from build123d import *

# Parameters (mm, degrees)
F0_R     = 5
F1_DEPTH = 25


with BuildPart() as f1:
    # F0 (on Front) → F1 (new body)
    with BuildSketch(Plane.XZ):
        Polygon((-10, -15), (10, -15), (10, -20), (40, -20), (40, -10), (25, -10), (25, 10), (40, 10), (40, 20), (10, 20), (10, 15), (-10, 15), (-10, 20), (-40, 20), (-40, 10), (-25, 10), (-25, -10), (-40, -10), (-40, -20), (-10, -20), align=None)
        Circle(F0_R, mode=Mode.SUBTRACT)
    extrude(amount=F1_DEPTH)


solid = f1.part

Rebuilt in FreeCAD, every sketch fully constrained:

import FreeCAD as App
import Part
import Sketcher

V = App.Vector

doc = App.newDocument("Part")
body = doc.addObject("PartDesign::Body", "Body")

sketch1 = doc.addObject("Sketcher::SketchObject", "Sketch")
body.addObject(sketch1)
sketch1.AttachmentSupport = (doc.XZ_Plane, [""])
sketch1.MapMode = "FlatFace"
sketch1.addGeometry(Part.LineSegment(V(-10, -15, 0), V(10, -15, 0)), False)
sketch1.addGeometry(Part.LineSegment(V(10, -15, 0), V(10, -20, 0)), False)
sketch1.addGeometry(Part.LineSegment(V(10, -20, 0), V(40, -20, 0)), False)
sketch1.addGeometry(Part.LineSegment(V(40, -20, 0), V(40, -10, 0)), False)
sketch1.addGeometry(Part.LineSegment(V(40, -10, 0), V(25, -10, 0)), False)
sketch1.addGeometry(Part.LineSegment(V(25, -10, 0), V(25, 10, 0)), False)
sketch1.addGeometry(Part.LineSegment(V(25, 10, 0), V(40, 10, 0)), False)
sketch1.addGeometry(Part.LineSegment(V(40, 10, 0), V(40, 20, 0)), False)
sketch1.addGeometry(Part.LineSegment(V(40, 20, 0), V(10, 20, 0)), False)
sketch1.addGeometry(Part.LineSegment(V(10, 20, 0), V(10, 15, 0)), False)
sketch1.addGeometry(Part.LineSegment(V(10, 15, 0), V(-10, 15, 0)), False)
sketch1.addGeometry(Part.LineSegment(V(-10, 15, 0), V(-10, 20, 0)), False)
sketch1.addGeometry(Part.LineSegment(V(-10, 20, 0), V(-40, 20, 0)), False)
sketch1.addGeometry(Part.LineSegment(V(-40, 20, 0), V(-40, 10, 0)), False)
sketch1.addGeometry(Part.LineSegment(V(-40, 10, 0), V(-25, 10, 0)), False)
sketch1.addGeometry(Part.LineSegment(V(-25, 10, 0), V(-25, -10, 0)), False)
sketch1.addGeometry(Part.LineSegment(V(-25, -10, 0), V(-40, -10, 0)), False)
sketch1.addGeometry(Part.LineSegment(V(-40, -10, 0), V(-40, -20, 0)), False)
sketch1.addGeometry(Part.LineSegment(V(-40, -20, 0), V(-10, -20, 0)), False)
sketch1.addGeometry(Part.LineSegment(V(-10, -20, 0), V(-10, -15, 0)), False)
sketch1.addGeometry(Part.Circle(V(0, 0, 0), V(0, 0, 1), 5), False)
sketch1.addConstraint(Sketcher.Constraint("Coincident", 0, 2, 1, 1))
sketch1.addConstraint(Sketcher.Constraint("Coincident", 1, 2, 2, 1))
sketch1.addConstraint(Sketcher.Constraint("Coincident", 2, 2, 3, 1))
sketch1.addConstraint(Sketcher.Constraint("Coincident", 3, 2, 4, 1))
sketch1.addConstraint(Sketcher.Constraint("Coincident", 4, 2, 5, 1))
sketch1.addConstraint(Sketcher.Constraint("Coincident", 5, 2, 6, 1))
sketch1.addConstraint(Sketcher.Constraint("Coincident", 6, 2, 7, 1))
sketch1.addConstraint(Sketcher.Constraint("Coincident", 7, 2, 8, 1))
sketch1.addConstraint(Sketcher.Constraint("Coincident", 8, 2, 9, 1))
sketch1.addConstraint(Sketcher.Constraint("Coincident", 9, 2, 10, 1))
sketch1.addConstraint(Sketcher.Constraint("Coincident", 10, 2, 11, 1))
sketch1.addConstraint(Sketcher.Constraint("Coincident", 11, 2, 12, 1))
sketch1.addConstraint(Sketcher.Constraint("Coincident", 12, 2, 13, 1))
sketch1.addConstraint(Sketcher.Constraint("Coincident", 13, 2, 14, 1))
sketch1.addConstraint(Sketcher.Constraint("Coincident", 14, 2, 15, 1))
sketch1.addConstraint(Sketcher.Constraint("Coincident", 15, 2, 16, 1))
sketch1.addConstraint(Sketcher.Constraint("Coincident", 16, 2, 17, 1))
sketch1.addConstraint(Sketcher.Constraint("Coincident", 17, 2, 18, 1))
sketch1.addConstraint(Sketcher.Constraint("Coincident", 18, 2, 19, 1))
sketch1.addConstraint(Sketcher.Constraint("Coincident", 19, 2, 0, 1))
sketch1.addConstraint(Sketcher.Constraint("Horizontal", 0))
sketch1.addConstraint(Sketcher.Constraint("Vertical", 1))
sketch1.addConstraint(Sketcher.Constraint("Horizontal", 2))
sketch1.addConstraint(Sketcher.Constraint("Vertical", 3))
sketch1.addConstraint(Sketcher.Constraint("Horizontal", 4))
sketch1.addConstraint(Sketcher.Constraint("Vertical", 5))
sketch1.addConstraint(Sketcher.Constraint("Horizontal", 6))
sketch1.addConstraint(Sketcher.Constraint("Vertical", 7))
sketch1.addConstraint(Sketcher.Constraint("Horizontal", 8))
sketch1.addConstraint(Sketcher.Constraint("Vertical", 9))
sketch1.addConstraint(Sketcher.Constraint("Horizontal", 10))
sketch1.addConstraint(Sketcher.Constraint("Vertical", 11))
sketch1.addConstraint(Sketcher.Constraint("Horizontal", 12))
sketch1.addConstraint(Sketcher.Constraint("Vertical", 13))
sketch1.addConstraint(Sketcher.Constraint("Horizontal", 14))
sketch1.addConstraint(Sketcher.Constraint("Vertical", 15))
sketch1.addConstraint(Sketcher.Constraint("Horizontal", 16))
sketch1.addConstraint(Sketcher.Constraint("Vertical", 17))
sketch1.addConstraint(Sketcher.Constraint("Horizontal", 18))
sketch1.addConstraint(Sketcher.Constraint("Vertical", 19))
sketch1.addConstraint(Sketcher.Constraint("Coincident", 20, 3, -1, 1))
sketch1.addConstraint(Sketcher.Constraint("Symmetric", 0, 2, 10, 2, -1, 1))
sketch1.addConstraint(Sketcher.Constraint("Symmetric", 2, 2, 12, 2, -1, 1))
sketch1.addConstraint(Sketcher.Constraint("Symmetric", 4, 2, 14, 2, -1, 1))
sketch1.addConstraint(Sketcher.Constraint("Symmetric", 6, 2, 16, 2, -1, 1))
sketch1.addConstraint(Sketcher.Constraint("Symmetric", 8, 2, 18, 2, -1, 1))
sketch1.addConstraint(Sketcher.Constraint("Symmetric", 8, 2, 11, 2, -2))
sketch1.addConstraint(Sketcher.Constraint("Symmetric", 6, 2, 13, 2, -2))
sketch1.addConstraint(Sketcher.Constraint("Equal", 10, 5))
sketch1.addConstraint(Sketcher.Constraint("Diameter", 20, 10.0))
sketch1.addConstraint(Sketcher.Constraint("DistanceX", 0, 1, 0, 2, 20.0))
sketch1.addConstraint(Sketcher.Constraint("DistanceX", 2, 1, 2, 2, 30.0))
sketch1.addConstraint(Sketcher.Constraint("DistanceX", 4, 2, 4, 1, 15.0))
sketch1.addConstraint(Sketcher.Constraint("DistanceY", 1, 2, 1, 1, 5.0))
sketch1.addConstraint(Sketcher.Constraint("DistanceY", 3, 1, 3, 2, 10.0))
pad1 = doc.addObject("PartDesign::Pad", "Pad")
body.addObject(pad1)
pad1.Profile = sketch1
pad1.Length = 25

doc.recompute()
